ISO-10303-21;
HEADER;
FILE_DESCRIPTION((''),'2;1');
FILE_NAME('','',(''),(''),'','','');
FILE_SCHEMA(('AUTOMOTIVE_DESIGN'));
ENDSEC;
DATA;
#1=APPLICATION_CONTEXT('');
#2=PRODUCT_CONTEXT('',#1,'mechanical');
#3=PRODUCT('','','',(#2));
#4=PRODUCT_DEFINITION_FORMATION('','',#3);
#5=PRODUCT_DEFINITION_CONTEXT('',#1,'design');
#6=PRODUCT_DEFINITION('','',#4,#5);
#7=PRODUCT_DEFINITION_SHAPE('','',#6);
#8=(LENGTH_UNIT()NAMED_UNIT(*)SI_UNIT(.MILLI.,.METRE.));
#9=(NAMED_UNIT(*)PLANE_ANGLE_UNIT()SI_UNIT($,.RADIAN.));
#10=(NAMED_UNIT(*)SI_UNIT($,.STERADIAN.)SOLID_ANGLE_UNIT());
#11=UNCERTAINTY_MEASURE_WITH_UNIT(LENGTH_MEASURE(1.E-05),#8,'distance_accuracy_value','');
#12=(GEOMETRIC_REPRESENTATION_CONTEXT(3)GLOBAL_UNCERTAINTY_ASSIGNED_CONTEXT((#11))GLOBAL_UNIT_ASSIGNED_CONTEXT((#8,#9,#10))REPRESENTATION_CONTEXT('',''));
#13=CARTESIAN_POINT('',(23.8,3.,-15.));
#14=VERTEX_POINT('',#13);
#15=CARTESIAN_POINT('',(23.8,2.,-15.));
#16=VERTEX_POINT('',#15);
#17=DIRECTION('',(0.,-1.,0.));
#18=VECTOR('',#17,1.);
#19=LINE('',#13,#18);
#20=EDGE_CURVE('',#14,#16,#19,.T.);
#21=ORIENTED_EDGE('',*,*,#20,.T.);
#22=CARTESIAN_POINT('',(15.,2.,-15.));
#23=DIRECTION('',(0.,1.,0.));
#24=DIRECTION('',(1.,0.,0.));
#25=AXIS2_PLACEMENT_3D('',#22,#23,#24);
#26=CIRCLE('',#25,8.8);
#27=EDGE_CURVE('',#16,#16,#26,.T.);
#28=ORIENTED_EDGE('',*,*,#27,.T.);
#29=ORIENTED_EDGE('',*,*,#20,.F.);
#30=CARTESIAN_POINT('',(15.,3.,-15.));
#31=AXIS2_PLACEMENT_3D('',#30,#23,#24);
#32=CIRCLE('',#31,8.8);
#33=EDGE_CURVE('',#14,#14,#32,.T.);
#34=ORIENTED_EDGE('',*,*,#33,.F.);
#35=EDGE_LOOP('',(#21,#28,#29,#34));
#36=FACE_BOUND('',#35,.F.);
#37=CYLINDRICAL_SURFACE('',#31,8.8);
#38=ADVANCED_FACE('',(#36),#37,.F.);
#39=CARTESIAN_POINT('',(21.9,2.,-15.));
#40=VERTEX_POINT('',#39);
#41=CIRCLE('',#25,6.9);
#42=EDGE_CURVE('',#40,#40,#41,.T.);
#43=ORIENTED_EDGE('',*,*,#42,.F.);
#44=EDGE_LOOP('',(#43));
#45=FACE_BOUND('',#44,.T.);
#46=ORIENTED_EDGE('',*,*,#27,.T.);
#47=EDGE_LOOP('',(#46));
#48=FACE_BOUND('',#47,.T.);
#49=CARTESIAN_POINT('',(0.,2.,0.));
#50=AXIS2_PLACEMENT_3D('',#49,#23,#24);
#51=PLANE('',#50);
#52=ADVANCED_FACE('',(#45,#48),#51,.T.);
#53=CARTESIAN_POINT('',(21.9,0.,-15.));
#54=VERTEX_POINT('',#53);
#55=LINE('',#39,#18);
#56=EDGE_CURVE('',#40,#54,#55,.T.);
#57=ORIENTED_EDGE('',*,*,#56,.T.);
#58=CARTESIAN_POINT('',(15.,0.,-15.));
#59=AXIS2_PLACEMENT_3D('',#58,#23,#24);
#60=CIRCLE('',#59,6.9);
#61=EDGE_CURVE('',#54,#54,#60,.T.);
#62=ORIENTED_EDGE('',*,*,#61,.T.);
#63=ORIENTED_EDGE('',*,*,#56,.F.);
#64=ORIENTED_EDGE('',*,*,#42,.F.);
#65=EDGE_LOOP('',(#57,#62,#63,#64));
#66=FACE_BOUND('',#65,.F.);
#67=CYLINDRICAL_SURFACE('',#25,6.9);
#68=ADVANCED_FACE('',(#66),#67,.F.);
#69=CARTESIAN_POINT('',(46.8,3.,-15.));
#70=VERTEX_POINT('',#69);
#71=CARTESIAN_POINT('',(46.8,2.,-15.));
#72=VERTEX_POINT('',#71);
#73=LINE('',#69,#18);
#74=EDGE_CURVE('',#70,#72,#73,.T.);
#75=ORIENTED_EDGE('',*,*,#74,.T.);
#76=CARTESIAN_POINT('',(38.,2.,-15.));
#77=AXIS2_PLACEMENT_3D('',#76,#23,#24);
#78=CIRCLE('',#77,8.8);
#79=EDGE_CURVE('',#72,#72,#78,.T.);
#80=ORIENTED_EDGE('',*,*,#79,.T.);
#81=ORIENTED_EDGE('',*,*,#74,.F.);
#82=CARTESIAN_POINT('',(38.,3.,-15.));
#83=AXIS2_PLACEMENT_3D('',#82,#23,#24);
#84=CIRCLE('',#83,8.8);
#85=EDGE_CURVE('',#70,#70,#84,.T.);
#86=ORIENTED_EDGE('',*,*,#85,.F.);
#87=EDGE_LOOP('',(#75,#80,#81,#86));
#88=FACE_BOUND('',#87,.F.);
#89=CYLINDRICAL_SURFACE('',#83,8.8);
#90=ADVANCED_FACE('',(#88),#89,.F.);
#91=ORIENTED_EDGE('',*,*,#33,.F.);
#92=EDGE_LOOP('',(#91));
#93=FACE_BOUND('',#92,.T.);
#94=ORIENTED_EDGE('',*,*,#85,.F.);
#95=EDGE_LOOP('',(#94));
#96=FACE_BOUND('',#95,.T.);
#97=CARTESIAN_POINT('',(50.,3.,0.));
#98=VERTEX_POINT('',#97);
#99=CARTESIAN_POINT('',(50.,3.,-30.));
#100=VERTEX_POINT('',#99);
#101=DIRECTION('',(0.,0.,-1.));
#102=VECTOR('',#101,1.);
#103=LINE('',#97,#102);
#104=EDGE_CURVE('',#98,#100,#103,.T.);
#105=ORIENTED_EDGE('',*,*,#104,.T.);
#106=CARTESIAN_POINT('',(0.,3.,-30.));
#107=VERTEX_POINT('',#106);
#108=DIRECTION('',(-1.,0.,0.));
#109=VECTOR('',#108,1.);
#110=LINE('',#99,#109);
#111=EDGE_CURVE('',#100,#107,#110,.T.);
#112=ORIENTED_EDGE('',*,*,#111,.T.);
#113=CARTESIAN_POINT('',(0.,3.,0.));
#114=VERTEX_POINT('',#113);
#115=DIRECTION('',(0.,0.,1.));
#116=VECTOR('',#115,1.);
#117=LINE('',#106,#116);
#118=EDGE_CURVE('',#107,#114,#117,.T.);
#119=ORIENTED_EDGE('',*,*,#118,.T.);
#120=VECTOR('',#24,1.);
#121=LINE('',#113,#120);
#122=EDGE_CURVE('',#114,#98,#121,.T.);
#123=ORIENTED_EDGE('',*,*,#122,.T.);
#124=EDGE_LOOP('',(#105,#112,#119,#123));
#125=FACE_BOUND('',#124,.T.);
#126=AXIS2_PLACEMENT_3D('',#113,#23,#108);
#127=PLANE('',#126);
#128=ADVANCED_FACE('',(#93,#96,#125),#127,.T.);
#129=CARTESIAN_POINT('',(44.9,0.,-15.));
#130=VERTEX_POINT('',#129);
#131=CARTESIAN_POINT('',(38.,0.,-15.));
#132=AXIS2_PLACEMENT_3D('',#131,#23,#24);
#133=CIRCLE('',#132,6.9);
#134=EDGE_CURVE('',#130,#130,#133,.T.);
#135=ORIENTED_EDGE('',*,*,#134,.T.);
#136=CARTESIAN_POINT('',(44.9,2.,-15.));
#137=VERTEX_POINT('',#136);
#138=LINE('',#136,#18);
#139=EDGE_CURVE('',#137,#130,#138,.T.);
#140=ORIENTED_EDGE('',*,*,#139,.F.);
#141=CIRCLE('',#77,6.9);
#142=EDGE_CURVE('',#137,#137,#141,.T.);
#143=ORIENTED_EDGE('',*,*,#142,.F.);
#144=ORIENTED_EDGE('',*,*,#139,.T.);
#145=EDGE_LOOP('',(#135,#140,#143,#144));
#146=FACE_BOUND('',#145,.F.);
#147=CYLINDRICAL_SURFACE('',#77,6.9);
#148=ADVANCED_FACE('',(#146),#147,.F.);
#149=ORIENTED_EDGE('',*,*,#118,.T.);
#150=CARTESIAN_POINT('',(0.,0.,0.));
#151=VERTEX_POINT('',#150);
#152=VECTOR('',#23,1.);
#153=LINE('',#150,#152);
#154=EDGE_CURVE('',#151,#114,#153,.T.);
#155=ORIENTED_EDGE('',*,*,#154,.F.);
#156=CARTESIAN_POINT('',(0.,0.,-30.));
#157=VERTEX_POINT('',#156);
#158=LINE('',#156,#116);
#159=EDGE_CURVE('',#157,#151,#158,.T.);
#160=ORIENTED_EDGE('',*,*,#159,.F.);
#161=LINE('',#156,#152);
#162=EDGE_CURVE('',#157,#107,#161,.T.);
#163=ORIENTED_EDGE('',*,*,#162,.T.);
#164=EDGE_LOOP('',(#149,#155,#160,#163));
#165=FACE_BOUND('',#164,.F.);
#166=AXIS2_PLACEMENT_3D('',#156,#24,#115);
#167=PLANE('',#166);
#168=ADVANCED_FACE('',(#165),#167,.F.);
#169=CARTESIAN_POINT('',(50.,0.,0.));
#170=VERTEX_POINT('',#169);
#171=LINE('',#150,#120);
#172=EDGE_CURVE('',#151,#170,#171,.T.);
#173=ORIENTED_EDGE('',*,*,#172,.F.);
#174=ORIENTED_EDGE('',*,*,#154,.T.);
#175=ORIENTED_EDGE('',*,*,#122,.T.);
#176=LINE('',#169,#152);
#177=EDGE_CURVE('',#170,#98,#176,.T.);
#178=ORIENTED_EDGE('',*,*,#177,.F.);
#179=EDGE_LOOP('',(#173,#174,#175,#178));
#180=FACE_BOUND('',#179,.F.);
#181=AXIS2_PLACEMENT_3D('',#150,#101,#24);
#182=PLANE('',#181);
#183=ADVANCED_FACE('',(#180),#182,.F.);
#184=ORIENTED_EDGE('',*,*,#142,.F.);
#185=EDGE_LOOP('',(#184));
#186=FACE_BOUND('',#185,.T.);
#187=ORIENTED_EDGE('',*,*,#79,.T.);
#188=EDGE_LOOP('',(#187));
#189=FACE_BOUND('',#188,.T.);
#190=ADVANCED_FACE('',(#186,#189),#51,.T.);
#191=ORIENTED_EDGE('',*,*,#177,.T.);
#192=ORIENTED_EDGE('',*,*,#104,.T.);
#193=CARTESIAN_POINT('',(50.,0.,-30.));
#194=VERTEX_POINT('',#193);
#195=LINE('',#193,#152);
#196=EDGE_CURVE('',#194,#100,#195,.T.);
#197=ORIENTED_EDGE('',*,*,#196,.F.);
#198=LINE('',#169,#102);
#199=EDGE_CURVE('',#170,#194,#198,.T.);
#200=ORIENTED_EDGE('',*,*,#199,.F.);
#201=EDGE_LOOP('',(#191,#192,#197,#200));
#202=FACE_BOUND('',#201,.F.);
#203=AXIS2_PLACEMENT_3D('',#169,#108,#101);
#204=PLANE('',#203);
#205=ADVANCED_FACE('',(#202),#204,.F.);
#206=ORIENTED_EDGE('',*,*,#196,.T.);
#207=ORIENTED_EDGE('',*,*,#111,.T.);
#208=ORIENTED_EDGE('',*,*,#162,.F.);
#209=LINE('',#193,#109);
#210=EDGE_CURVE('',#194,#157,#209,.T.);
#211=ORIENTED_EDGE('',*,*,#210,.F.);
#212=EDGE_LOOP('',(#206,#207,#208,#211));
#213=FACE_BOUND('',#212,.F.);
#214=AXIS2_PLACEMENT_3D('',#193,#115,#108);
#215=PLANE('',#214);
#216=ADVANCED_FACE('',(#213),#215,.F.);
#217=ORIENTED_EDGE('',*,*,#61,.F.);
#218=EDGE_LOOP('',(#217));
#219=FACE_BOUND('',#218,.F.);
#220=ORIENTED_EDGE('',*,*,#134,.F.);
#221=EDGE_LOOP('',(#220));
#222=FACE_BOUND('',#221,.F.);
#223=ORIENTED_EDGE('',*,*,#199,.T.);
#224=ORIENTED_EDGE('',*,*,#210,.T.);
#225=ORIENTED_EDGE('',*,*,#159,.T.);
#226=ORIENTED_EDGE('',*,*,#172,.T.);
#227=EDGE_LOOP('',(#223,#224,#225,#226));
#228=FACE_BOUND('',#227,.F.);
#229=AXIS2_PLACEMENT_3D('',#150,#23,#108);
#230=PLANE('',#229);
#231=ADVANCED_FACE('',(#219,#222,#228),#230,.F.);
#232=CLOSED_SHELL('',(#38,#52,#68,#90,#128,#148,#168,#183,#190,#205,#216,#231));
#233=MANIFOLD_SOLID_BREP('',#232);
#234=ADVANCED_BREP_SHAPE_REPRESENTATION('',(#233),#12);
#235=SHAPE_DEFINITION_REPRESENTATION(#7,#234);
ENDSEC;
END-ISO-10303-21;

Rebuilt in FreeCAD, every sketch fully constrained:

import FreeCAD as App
import Part
import Sketcher
Q = App.Units.Quantity

doc = App.newDocument("Part")
body = doc.addObject("PartDesign::Body", "Body")

# Sketch on XZ plane
sketch1 = body.newObject("Sketcher::SketchObject", "Sketch")
sketch1.AttachmentSupport = (doc.getObject("XZ_Plane"), [""])
sketch1.MapMode = "FlatFace"
sketch1.addGeometry([
    Part.LineSegment(App.Vector(0, -30, 0), App.Vector(0, 0, 0)),
    Part.LineSegment(App.Vector(0, 0, 0), App.Vector(50, 0, 0)),
    Part.LineSegment(App.Vector(50, 0, 0), App.Vector(50, -30, 0)),
    Part.LineSegment(App.Vector(50, -30, 0), App.Vector(0, -30, 0)),
], False)
sketch1.addConstraint([
    Sketcher.Constraint("Coincident", 0, 2, 1, 1),
    Sketcher.Constraint("Coincident", 1, 2, 2, 1),
    Sketcher.Constraint("Coincident", 2, 2, 3, 1),
    Sketcher.Constraint("Coincident", 3, 2, 0, 1),
    Sketcher.Constraint("Vertical", 0),
    Sketcher.Constraint("Horizontal", 1),
    Sketcher.Constraint("Vertical", 2),
    Sketcher.Constraint("Horizontal", 3),
    Sketcher.Constraint("Coincident", 0, 2, -1, 1),
    Sketcher.Constraint("DistanceX", 1, 1, 1, 2, Q("50 mm")),
    Sketcher.Constraint("DistanceY", 0, 1, 0, 2, Q("30 mm")),
])
pad1 = body.newObject("PartDesign::Pad", "Pad")
pad1.Profile = sketch1
pad1.Length = 3
pad1.Reversed = True

# Sketch on XZ plane
sketch2 = body.newObject("Sketcher::SketchObject", "Sketch001")
sketch2.AttachmentSupport = (doc.getObject("XZ_Plane"), [""])
sketch2.MapMode = "FlatFace"
sketch2.AttachmentOffset = App.Placement(App.Vector(0, 0, -3), App.Rotation())
sketch2.addGeometry([
    Part.Circle(App.Vector(15, -15, 0), App.Vector(0, 0, 1), 9),
    Part.Circle(App.Vector(38, -15, 0), App.Vector(0, 0, 1), 9),
], False)
sketch2.addConstraint([
    Sketcher.Constraint("Equal", 0, 1),
    Sketcher.Constraint("Horizontal", 0, 3, 1, 3),
    Sketcher.Constraint("Diameter", 0, Q("17.6 mm")),
    Sketcher.Constraint("DistanceX", -1, 1, 0, 3, Q("15 mm")),
    Sketcher.Constraint("DistanceY", 0, 3, -1, 1, Q("15 mm")),
    Sketcher.Constraint("DistanceX", 0, 3, 1, 3, Q("23 mm")),
])
pocket1 = body.newObject("PartDesign::Pocket", "Pocket")
pocket1.Profile = sketch2
pocket1.Length = 1
pocket1.Reversed = True

# Sketch on XZ plane
sketch3 = body.newObject("Sketcher::SketchObject", "Sketch002")
sketch3.AttachmentSupport = (doc.getObject("XZ_Plane"), [""])
sketch3.MapMode = "FlatFace"
sketch3.AttachmentOffset = App.Placement(App.Vector(0, 0, -2), App.Rotation())
sketch3.addGeometry([
    Part.Circle(App.Vector(15, -15, 0), App.Vector(0, 0, 1), 7),
    Part.Circle(App.Vector(38, -15, 0), App.Vector(0, 0, 1), 7),
], False)
sketch3.addConstraint([
    Sketcher.Constraint("Equal", 0, 1),
    Sketcher.Constraint("Horizontal", 0, 3, 1, 3),
    Sketcher.Constraint("Diameter", 0, Q("13.8 mm")),
    Sketcher.Constraint("DistanceX", -1, 1, 0, 3, Q("15 mm")),
    Sketcher.Constraint("DistanceY", 0, 3, -1, 1, Q("15 mm")),
    Sketcher.Constraint("DistanceX", -1, 1, 1, 3, Q("38 mm")),
])
pocket2 = body.newObject("PartDesign::Pocket", "Pocket001")
pocket2.Profile = sketch3
pocket2.Type = "ThroughAll"
pocket2.Reversed = True

doc.recompute()
